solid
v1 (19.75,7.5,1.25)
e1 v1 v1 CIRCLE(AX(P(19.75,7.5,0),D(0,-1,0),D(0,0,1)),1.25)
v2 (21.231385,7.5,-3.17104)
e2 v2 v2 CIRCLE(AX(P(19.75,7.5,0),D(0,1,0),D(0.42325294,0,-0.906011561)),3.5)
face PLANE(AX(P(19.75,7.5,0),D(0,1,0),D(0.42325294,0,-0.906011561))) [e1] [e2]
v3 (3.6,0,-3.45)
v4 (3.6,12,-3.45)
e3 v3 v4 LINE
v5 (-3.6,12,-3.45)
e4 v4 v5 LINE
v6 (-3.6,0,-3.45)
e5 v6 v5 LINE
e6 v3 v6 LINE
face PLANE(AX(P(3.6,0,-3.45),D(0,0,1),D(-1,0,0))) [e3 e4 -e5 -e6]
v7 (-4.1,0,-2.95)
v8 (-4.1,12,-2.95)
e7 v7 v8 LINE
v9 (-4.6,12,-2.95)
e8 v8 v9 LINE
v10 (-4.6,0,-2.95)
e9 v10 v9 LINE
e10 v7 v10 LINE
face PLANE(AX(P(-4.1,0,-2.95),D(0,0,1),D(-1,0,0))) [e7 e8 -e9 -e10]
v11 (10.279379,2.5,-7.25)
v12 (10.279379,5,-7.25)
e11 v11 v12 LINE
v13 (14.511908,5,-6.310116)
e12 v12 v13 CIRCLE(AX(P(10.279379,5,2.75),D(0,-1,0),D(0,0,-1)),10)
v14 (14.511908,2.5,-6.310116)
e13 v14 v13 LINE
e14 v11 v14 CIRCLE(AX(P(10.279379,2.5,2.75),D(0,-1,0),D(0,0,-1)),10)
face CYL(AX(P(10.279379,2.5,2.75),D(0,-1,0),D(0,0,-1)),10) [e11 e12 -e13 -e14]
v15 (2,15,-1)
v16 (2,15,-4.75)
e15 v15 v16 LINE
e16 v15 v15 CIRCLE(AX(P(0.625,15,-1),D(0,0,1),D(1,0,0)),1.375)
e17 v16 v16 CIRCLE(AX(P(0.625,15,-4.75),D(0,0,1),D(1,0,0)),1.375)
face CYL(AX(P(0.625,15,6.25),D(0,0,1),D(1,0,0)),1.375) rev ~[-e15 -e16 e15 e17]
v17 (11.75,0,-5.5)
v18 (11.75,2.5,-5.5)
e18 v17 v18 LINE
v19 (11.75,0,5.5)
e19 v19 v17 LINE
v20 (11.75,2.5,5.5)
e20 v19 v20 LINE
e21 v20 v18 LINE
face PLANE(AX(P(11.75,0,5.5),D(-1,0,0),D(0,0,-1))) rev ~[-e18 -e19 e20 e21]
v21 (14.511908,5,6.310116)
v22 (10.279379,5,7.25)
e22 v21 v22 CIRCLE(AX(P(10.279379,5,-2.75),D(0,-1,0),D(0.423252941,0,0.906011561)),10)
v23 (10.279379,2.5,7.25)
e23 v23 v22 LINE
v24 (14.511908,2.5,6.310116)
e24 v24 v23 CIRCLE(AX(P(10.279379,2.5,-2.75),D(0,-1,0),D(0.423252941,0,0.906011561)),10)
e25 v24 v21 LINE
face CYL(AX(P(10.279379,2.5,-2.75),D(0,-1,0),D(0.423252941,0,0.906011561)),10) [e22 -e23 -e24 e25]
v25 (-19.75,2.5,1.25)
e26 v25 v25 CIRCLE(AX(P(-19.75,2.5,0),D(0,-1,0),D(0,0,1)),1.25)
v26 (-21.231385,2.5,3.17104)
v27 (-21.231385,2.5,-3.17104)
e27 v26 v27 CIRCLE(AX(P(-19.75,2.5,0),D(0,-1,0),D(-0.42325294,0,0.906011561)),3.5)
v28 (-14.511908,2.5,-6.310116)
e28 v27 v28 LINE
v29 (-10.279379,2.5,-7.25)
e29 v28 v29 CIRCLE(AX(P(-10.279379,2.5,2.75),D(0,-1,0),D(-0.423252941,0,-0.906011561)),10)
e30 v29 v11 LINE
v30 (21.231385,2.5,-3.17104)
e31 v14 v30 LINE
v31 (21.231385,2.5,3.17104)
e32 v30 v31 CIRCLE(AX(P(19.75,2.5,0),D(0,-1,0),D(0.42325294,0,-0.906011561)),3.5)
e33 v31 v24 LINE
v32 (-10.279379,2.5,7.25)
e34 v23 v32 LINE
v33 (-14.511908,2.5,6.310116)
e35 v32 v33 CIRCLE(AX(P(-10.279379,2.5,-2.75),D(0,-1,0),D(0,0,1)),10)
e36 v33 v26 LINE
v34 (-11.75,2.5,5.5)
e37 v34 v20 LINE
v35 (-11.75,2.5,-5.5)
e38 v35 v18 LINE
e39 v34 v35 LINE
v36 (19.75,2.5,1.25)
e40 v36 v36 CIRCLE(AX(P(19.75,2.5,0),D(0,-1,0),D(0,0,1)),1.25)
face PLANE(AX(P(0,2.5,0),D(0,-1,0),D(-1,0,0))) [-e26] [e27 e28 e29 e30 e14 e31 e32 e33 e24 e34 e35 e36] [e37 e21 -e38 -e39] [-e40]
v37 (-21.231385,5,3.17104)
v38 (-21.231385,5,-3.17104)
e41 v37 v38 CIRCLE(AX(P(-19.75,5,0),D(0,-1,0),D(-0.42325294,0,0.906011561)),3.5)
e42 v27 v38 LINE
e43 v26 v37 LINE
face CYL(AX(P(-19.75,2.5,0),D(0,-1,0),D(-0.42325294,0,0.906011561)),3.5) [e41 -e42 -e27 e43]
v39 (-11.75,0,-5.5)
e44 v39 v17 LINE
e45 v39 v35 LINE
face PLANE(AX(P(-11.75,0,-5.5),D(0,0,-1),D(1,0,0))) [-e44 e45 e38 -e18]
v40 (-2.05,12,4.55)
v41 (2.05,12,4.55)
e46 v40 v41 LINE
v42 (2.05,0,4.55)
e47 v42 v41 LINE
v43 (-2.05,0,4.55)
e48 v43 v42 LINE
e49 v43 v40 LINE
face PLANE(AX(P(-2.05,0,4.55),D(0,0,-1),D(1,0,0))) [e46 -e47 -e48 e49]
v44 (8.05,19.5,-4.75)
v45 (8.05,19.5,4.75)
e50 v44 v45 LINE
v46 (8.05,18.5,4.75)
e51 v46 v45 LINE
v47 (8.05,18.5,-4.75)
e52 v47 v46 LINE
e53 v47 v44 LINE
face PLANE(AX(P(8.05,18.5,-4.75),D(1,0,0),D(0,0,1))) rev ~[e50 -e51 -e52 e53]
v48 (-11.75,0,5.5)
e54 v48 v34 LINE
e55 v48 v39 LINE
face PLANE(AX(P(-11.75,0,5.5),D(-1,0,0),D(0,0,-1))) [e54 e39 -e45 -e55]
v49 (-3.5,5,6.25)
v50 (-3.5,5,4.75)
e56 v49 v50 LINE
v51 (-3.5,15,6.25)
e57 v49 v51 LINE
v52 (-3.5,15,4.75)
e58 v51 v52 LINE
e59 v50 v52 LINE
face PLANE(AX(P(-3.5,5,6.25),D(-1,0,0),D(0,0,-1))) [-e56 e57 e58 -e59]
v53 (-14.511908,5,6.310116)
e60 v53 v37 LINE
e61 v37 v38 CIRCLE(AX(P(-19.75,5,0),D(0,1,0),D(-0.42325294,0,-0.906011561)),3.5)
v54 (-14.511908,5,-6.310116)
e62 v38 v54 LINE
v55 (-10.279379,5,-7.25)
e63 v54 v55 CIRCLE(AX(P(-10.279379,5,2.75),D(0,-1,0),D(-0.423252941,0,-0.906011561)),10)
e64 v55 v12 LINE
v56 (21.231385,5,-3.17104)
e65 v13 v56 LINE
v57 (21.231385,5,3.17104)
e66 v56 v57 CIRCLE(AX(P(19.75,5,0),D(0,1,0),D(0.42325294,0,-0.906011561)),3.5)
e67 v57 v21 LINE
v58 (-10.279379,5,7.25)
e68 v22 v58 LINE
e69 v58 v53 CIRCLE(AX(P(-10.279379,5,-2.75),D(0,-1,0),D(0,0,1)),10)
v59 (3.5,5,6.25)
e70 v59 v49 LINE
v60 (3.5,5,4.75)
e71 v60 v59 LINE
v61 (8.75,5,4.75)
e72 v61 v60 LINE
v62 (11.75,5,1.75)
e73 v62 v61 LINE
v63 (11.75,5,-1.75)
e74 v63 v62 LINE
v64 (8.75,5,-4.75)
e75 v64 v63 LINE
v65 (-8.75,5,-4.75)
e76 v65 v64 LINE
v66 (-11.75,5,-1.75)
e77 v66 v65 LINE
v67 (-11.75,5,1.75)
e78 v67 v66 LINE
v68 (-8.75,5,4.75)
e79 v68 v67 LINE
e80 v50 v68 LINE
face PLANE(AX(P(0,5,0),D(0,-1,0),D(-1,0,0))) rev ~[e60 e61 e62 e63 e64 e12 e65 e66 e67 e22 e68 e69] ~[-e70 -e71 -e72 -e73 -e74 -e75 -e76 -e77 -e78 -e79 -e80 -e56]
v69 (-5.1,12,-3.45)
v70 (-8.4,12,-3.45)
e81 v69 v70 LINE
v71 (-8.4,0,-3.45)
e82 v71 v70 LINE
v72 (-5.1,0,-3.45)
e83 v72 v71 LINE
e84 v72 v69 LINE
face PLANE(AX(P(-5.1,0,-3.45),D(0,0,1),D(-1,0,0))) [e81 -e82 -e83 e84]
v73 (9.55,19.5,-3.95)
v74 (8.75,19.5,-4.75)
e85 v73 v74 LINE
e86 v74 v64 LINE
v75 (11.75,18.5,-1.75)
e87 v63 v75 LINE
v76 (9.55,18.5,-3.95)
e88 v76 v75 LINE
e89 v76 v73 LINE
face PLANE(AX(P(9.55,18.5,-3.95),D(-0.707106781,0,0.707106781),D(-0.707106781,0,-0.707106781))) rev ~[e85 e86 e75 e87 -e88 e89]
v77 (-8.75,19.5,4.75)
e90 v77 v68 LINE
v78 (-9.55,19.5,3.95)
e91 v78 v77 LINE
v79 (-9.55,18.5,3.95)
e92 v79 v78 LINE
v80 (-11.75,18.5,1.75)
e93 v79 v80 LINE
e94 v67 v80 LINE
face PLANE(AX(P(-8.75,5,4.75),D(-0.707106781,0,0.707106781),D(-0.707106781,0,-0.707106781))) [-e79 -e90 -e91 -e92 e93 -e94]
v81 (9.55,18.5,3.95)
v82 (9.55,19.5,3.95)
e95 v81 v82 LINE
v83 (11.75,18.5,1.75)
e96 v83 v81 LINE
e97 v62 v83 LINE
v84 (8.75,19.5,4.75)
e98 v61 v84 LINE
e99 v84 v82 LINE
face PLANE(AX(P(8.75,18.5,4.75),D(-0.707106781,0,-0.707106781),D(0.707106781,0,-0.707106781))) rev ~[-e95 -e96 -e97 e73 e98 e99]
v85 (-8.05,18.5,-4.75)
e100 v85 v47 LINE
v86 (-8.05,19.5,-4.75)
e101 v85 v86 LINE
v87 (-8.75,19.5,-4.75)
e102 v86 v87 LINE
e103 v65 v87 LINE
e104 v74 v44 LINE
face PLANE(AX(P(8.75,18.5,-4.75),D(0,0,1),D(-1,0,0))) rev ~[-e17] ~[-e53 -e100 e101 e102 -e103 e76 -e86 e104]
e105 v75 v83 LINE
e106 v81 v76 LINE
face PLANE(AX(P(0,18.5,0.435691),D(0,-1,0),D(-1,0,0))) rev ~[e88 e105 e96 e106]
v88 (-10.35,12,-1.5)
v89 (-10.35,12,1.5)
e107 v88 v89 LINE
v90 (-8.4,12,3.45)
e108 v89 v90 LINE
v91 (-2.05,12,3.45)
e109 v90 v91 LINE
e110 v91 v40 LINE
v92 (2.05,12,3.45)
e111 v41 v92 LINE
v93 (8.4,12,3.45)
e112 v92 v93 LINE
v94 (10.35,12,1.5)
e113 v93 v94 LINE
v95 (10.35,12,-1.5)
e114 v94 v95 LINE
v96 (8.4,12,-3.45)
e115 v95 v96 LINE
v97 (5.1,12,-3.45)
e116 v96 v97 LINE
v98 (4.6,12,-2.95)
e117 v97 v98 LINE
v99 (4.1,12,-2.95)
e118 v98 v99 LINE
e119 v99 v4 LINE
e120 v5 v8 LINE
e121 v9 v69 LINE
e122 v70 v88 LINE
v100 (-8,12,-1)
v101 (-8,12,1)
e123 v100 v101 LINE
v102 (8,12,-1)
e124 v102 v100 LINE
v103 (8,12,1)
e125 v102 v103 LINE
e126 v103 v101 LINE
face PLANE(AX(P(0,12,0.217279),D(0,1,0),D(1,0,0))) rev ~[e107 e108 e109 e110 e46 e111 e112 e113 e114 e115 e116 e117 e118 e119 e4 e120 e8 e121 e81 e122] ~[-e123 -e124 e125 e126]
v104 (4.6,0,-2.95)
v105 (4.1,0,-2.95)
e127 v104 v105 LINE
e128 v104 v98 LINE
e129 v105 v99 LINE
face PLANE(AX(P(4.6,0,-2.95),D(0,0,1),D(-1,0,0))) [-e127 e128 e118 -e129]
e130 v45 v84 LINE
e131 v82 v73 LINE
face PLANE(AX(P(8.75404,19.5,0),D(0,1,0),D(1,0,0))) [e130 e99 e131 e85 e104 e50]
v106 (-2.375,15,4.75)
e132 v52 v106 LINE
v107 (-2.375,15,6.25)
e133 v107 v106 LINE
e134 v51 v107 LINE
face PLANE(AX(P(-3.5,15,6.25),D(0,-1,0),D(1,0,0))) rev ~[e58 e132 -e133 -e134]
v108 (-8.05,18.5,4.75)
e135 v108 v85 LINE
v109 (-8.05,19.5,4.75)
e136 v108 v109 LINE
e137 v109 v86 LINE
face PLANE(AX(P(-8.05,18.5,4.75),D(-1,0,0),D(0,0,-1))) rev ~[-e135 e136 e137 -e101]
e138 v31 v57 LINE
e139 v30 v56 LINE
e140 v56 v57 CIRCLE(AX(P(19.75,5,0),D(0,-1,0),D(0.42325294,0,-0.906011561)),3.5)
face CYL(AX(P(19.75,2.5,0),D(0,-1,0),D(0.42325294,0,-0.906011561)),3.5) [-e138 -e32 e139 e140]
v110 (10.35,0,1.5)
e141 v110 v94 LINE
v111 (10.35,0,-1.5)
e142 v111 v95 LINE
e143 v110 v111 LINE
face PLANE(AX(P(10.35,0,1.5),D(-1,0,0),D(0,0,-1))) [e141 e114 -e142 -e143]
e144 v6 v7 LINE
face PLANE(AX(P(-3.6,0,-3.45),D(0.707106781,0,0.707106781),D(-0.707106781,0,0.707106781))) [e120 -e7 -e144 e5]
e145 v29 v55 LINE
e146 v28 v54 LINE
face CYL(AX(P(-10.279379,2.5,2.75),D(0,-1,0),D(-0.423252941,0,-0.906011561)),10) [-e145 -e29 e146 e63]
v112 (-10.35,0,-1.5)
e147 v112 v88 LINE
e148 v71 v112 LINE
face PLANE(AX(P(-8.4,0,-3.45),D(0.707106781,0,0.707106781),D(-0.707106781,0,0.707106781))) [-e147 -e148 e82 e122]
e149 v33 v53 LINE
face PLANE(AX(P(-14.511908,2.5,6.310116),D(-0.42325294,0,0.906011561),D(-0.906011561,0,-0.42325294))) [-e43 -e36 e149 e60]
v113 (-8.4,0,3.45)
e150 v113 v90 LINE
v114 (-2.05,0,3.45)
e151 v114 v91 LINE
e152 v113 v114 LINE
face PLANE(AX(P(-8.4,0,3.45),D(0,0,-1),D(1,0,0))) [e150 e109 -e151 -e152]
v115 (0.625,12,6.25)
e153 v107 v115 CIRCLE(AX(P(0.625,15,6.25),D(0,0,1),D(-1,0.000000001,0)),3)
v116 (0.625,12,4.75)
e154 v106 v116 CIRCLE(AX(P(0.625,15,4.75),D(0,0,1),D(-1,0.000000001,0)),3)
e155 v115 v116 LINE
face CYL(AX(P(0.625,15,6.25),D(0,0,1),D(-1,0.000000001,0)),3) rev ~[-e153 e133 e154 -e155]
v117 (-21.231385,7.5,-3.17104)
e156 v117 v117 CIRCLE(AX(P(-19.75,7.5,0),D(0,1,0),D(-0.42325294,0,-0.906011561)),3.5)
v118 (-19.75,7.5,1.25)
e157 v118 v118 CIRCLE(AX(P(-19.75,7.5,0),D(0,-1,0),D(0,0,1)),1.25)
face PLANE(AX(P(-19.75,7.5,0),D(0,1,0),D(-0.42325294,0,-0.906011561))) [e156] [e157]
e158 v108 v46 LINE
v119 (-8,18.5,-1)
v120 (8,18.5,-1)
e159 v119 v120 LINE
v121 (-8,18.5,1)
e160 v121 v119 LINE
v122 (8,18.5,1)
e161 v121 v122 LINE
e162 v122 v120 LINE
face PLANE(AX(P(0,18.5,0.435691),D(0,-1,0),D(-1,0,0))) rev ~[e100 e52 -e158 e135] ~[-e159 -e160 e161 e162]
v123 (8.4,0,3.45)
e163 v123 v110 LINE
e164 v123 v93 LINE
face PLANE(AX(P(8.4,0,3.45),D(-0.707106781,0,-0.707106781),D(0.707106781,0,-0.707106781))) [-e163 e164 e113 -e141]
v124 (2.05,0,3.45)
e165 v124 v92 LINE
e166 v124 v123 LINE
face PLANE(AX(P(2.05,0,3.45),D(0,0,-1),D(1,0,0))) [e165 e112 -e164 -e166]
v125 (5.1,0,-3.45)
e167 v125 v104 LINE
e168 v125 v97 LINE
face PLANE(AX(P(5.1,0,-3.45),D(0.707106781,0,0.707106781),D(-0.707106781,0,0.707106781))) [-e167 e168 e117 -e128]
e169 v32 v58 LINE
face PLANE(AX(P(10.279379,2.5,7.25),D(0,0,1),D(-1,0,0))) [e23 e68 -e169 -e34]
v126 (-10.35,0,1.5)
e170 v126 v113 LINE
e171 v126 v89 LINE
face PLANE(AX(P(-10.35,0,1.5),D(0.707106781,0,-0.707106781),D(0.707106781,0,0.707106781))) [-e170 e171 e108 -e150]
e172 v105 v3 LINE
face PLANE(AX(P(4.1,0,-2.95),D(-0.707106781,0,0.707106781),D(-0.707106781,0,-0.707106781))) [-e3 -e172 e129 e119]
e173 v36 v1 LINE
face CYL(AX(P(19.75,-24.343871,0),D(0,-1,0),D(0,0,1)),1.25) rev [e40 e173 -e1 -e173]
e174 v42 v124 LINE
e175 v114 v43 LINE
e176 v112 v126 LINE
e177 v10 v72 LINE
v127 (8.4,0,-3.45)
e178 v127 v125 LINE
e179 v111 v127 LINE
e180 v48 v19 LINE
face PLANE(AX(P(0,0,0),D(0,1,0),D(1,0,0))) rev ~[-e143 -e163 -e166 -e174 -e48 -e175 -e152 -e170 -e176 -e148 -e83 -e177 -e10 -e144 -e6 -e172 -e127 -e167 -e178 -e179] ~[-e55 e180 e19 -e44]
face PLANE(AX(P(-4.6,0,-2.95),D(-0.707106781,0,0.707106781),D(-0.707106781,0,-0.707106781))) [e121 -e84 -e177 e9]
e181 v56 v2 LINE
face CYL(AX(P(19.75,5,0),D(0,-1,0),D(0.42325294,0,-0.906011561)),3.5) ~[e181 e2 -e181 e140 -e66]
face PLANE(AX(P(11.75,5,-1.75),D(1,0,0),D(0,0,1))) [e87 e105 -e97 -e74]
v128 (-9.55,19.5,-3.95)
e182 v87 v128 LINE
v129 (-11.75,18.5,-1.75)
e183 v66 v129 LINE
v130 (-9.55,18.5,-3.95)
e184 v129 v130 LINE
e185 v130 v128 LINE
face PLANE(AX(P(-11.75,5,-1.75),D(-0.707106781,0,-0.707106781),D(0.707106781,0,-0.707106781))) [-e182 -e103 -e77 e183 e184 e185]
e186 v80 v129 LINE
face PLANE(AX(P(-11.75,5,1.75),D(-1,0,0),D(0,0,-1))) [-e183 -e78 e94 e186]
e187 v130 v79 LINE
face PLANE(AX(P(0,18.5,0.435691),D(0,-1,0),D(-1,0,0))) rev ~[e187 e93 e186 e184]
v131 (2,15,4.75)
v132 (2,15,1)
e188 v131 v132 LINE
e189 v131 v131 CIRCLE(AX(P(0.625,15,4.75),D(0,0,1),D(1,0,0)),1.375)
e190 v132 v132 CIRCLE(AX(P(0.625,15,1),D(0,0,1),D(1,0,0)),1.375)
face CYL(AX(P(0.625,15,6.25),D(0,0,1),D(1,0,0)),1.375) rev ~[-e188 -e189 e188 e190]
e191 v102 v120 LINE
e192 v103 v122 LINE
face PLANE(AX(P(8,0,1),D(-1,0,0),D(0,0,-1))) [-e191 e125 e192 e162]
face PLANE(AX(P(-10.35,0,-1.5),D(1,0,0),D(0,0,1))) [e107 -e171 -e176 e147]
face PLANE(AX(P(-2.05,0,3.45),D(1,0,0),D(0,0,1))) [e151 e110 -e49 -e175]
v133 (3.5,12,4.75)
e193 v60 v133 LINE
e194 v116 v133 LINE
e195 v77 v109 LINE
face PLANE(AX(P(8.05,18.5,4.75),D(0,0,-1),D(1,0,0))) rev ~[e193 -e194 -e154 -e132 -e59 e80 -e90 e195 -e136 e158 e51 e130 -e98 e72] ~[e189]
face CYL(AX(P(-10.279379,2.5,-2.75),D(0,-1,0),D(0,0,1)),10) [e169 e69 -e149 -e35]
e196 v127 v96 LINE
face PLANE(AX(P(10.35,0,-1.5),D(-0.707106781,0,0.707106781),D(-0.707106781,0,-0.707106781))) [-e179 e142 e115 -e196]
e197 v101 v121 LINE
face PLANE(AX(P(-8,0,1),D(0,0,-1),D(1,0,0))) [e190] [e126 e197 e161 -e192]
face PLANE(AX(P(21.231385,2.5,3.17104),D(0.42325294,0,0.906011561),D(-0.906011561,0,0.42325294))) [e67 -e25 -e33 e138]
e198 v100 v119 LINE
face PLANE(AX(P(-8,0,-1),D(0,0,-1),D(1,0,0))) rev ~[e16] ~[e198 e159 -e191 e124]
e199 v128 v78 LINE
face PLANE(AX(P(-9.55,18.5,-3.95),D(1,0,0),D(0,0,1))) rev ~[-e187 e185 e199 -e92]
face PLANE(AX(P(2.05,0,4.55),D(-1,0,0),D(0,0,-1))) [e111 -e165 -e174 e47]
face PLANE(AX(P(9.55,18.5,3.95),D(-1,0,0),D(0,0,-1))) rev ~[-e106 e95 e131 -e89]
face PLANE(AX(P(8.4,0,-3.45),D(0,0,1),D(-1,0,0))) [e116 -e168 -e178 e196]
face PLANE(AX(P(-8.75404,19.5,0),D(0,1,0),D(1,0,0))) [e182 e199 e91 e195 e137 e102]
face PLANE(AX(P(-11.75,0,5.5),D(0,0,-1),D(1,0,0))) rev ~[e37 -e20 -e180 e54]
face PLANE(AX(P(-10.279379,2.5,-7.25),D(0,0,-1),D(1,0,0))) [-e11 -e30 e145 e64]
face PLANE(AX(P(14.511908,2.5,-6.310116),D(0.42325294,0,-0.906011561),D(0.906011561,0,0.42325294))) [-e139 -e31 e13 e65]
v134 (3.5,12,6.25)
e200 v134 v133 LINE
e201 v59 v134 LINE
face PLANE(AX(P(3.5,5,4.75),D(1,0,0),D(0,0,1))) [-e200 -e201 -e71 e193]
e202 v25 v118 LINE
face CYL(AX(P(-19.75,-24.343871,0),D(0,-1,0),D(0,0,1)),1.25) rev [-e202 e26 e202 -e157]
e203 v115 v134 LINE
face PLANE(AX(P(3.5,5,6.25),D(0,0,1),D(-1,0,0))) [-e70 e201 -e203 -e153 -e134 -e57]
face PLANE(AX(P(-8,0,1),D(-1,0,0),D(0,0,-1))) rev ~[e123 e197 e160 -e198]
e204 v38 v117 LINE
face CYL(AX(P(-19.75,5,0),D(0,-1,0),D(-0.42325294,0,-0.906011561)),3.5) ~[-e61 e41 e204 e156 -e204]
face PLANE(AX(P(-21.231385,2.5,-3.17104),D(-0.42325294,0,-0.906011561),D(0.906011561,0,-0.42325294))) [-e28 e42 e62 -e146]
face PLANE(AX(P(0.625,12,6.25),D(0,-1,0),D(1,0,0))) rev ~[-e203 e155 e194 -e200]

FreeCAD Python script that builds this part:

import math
import FreeCAD as App
import Part
import Sketcher

doc = App.newDocument("Part")
params = doc.addObject("Spreadsheet::Sheet", "Params")
for row, (alias, value) in enumerate([
    ("sketch1_height", "11 mm"),
    ("sketch1_width", "23.5 mm"),
    ("pad1_length", "2.5 mm"),
    ("sketch2_radius", "10 mm"),
    ("sketch2_radius2", "3.5 mm"),
    ("pad2_length", "2.5 mm"),
    ("sketch3_width", "7 mm"),
    ("sketch3_width2", "17.5 mm"),
    ("sketch3_height", "3.5 mm"),
    ("sketch3_height2", "1.5 mm"),
    ("pad3_length", "13.5 mm"),
    ("sketch4_width", "0.7 mm"),
    ("sketch4_height", "9.5 mm"),
    ("sketch4_height2", "7.9 mm"),
    ("pad4_length", "1 mm"),
    ("sketch5_height", "3 mm"),
    ("sketch5_width", "3.3 mm"),
    ("sketch5_width2", "0.5 mm"),
    ("sketch5_width3", "7.2 mm"),
    ("sketch5_width4", "4.1 mm"),
    ("pocket1_length", "12 mm"),
    ("sketch6_width", "16 mm"),
    ("sketch6_height", "2 mm"),
    ("sketch7_diameter", "2.75 mm"),
    ("pocket3_length", "12 mm"),
    ("sketch8_radius", "3 mm"),
    ("sketch8_width", "7 mm"),
    ("sketch8_height", "6.5 mm"),
    ("pocket4_length", "1.5 mm"),
    ("sketch9_diameter", "7 mm"),
    ("pad5_length", "2.5 mm"),
    ("sketch10_diameter", "2.5 mm"),
], start=1):
    params.set(f"A{row}", alias)
    params.set(f"B{row}", "=" + value)
    params.setAlias(f"B{row}", alias)

body = doc.addObject("PartDesign::Body", "Body")

sketch1 = body.newObject("Sketcher::SketchObject", "Sketch")
sketch1.AttachmentSupport = (doc.getObject("XZ_Plane"), [""])
sketch1.MapMode = "FlatFace"
sketch1.addGeometry(Part.LineSegment(App.Vector(-12, -6, 0), App.Vector(-12, 6, 0)), False)
sketch1.addGeometry(Part.LineSegment(App.Vector(-12, 6, 0), App.Vector(12, 6, 0)), False)
sketch1.addGeometry(Part.LineSegment(App.Vector(12, 6, 0), App.Vector(12, -6, 0)), False)
sketch1.addGeometry(Part.LineSegment(App.Vector(12, -6, 0), App.Vector(-12, -6, 0)), False)
sketch1.addConstraint(Sketcher.Constraint("Coincident", 0, 2, 1, 1))
sketch1.addConstraint(Sketcher.Constraint("Coincident", 1, 2, 2, 1))
sketch1.addConstraint(Sketcher.Constraint("Coincident", 2, 2, 3, 1))
sketch1.addConstraint(Sketcher.Constraint("Coincident", 3, 2, 0, 1))
sketch1.addConstraint(Sketcher.Constraint("Vertical", 0))
sketch1.addConstraint(Sketcher.Constraint("Horizontal", 1))
sketch1.addConstraint(Sketcher.Constraint("Vertical", 2))
sketch1.addConstraint(Sketcher.Constraint("Horizontal", 3))
sketch1.addConstraint(Sketcher.Constraint("Symmetric", 0, 2, 2, 2, -1, 1))
sketch1.addConstraint(Sketcher.Constraint("DistanceY", 0, 1, 0, 2, 11.0))
sketch1.addConstraint(Sketcher.Constraint("DistanceX", 1, 1, 1, 2, 23.5))
sketch1.setExpression("Constraints[9]", "Params.sketch1_height")
sketch1.setExpression("Constraints[10]", "Params.sketch1_width")
pad1 = body.newObject("PartDesign::Pad", "Pad")
pad1.Profile = sketch1
pad1.setExpression("Length", "Params.pad1_length")
pad1.Reversed = True

sketch2 = body.newObject("Sketcher::SketchObject", "Sketch001")
sketch2.AttachmentSupport = (doc.getObject("XZ_Plane"), [""])
sketch2.MapMode = "FlatFace"
sketch2.AttachmentOffset = App.Placement(App.Vector(0, 0, -2.5), App.Rotation())
sketch2.addGeometry(Part.LineSegment(App.Vector(14.5, 6.3, 0), App.Vector(21.2, 3.2, 0)), False)
sketch2.addGeometry(Part.ArcOfCircle(Part.Circle(App.Vector(19.8, 0, 0), App.Vector(0, 0, 1), 3.5), math.radians(-65), math.radians(65)), False)
sketch2.addGeometry(Part.LineSegment(App.Vector(21.2, -3.2, 0), App.Vector(14.5, -6.3, 0)), False)
sketch2.addGeometry(Part.ArcOfCircle(Part.Circle(App.Vector(10.3, 2.7, 0), App.Vector(0, 0, 1), 10), math.radians(-90), math.radians(-65)), False)
sketch2.addGeometry(Part.LineSegment(App.Vector(10.3, -7.2, 0), App.Vector(-10.3, -7.2, 0)), False)
sketch2.addGeometry(Part.ArcOfCircle(Part.Circle(App.Vector(-10.3, 2.7, 0), App.Vector(0, 0, 1), 10), math.radians(-115), math.radians(-90)), False)
sketch2.addGeometry(Part.LineSegment(App.Vector(-14.5, -6.3, 0), App.Vector(-21.2, -3.2, 0)), False)
sketch2.addGeometry(Part.ArcOfCircle(Part.Circle(App.Vector(-19.8, 0, 0), App.Vector(0, 0, 1), 3.5), math.radians(115), math.radians(245)), False)
sketch2.addGeometry(Part.LineSegment(App.Vector(-21.2, 3.2, 0), App.Vector(-14.5, 6.3, 0)), False)
sketch2.addGeometry(Part.ArcOfCircle(Part.Circle(App.Vector(-10.3, -2.7, 0), App.Vector(0, 0, 1), 10), math.radians(90), math.radians(115)), False)
sketch2.addGeometry(Part.LineSegment(App.Vector(-10.3, 7.2, 0), App.Vector(10.3, 7.2, 0)), False)
sketch2.addGeometry(Part.ArcOfCircle(Part.Circle(App.Vector(10.3, -2.7, 0), App.Vector(0, 0, 1), 10), math.radians(65), math.radians(90)), False)
sketch2.addConstraint(Sketcher.Constraint("Tangent", 0, 2, 1, 2))
sketch2.addConstraint(Sketcher.Constraint("Tangent", 1, 1, 2, 1))
sketch2.addConstraint(Sketcher.Constraint("Tangent", 2, 2, 3, 2))
sketch2.addConstraint(Sketcher.Constraint("Tangent", 3, 1, 4, 1))
sketch2.addConstraint(Sketcher.Constraint("Tangent", 4, 2, 5, 2))
sketch2.addConstraint(Sketcher.Constraint("Tangent", 5, 1, 6, 1))
sketch2.addConstraint(Sketcher.Constraint("Tangent", 6, 2, 7, 2))
sketch2.addConstraint(Sketcher.Constraint("Tangent", 7, 1, 8, 1))
sketch2.addConstraint(Sketcher.Constraint("Tangent", 8, 2, 9, 2))
sketch2.addConstraint(Sketcher.Constraint("Tangent", 9, 1, 10, 1))
sketch2.addConstraint(Sketcher.Constraint("Tangent", 10, 2, 11, 2))
sketch2.addConstraint(Sketcher.Constraint("Tangent", 11, 1, 0, 1))
sketch2.addConstraint(Sketcher.Constraint("Horizontal", 4))
sketch2.addConstraint(Sketcher.Constraint("Horizontal", 10))
sketch2.addConstraint(Sketcher.Constraint("Equal", 3, 5))
sketch2.addConstraint(Sketcher.Constraint("Equal", 1, 7))
sketch2.addConstraint(Sketcher.Constraint("Equal", 5, 9))
sketch2.addConstraint(Sketcher.Constraint("Equal", 9, 11))
sketch2.addConstraint(Sketcher.Constraint("Symmetric", 1, 3, 7, 3, -1, 1))
sketch2.addConstraint(Sketcher.Constraint("Symmetric", 3, 3, 9, 3, -1, 1))
sketch2.addConstraint(Sketcher.Constraint("Symmetric", 2, 2, 5, 1, -2))
sketch2.addConstraint(Sketcher.Constraint("Parallel", 0, 6))
sketch2.addConstraint(Sketcher.Constraint("Radius", 3, 10.0))
sketch2.addConstraint(Sketcher.Constraint("Radius", 1, 3.5))
sketch2.addConstraint(Sketcher.Constraint("DistanceX", 7, 3, 1, 3, 39.5))
sketch2.addConstraint(Sketcher.Constraint("DistanceY", 9, 3, 5, 3, 5.5))
sketch2.addConstraint(Sketcher.Constraint("DistanceX", 4, 2, 4, 1, 20.558758))
sketch2.setExpression("Constraints[22]", "Params.sketch2_radius")
sketch2.setExpression("Constraints[23]", "Params.sketch2_radius2")
pad2 = body.newObject("PartDesign::Pad", "Pad001")
pad2.Profile = sketch2
pad2.setExpression("Length", "Params.pad2_length")
pad2.Reversed = True

sketch3 = body.newObject("Sketcher::SketchObject", "Sketch002")
sketch3.AttachmentSupport = (doc.getObject("XZ_Plane"), [""])
sketch3.MapMode = "FlatFace"
sketch3.AttachmentOffset = App.Placement(App.Vector(0, 0, -5), App.Rotation())
sketch3.addGeometry(Part.LineSegment(App.Vector(3.5, 4.8, 0), App.Vector(8.8, 4.8, 0)), False)
sketch3.addGeometry(Part.LineSegment(App.Vector(8.8, 4.8, 0), App.Vector(11.8, 1.8, 0)), False)
sketch3.addGeometry(Part.LineSegment(App.Vector(11.8, 1.8, 0), App.Vector(11.8, -1.8, 0)), False)
sketch3.addGeometry(Part.LineSegment(App.Vector(11.8, -1.8, 0), App.Vector(8.8, -4.8, 0)), False)
sketch3.addGeometry(Part.LineSegment(App.Vector(8.8, -4.8, 0), App.Vector(-8.8, -4.8, 0)), False)
sketch3.addGeometry(Part.LineSegment(App.Vector(-8.8, -4.8, 0), App.Vector(-11.8, -1.8, 0)), False)
sketch3.addGeometry(Part.LineSegment(App.Vector(-11.8, -1.8, 0), App.Vector(-11.8, 1.8, 0)), False)
sketch3.addGeometry(Part.LineSegment(App.Vector(-11.8, 1.8, 0), App.Vector(-8.8, 4.8, 0)), False)
sketch3.addGeometry(Part.LineSegment(App.Vector(-8.8, 4.8, 0), App.Vector(-3.5, 4.8, 0)), False)
sketch3.addGeometry(Part.LineSegment(App.Vector(-3.5, 4.8, 0), App.Vector(-3.5, 6.2, 0)), False)
sketch3.addGeometry(Part.LineSegment(App.Vector(-3.5, 6.2, 0), App.Vector(3.5, 6.2, 0)), False)
sketch3.addGeometry(Part.LineSegment(App.Vector(3.5, 6.2, 0), App.Vector(3.5, 4.8, 0)), False)
sketch3.addConstraint(Sketcher.Constraint("Coincident", 0, 2, 1, 1))
sketch3.addConstraint(Sketcher.Constraint("Coincident", 1, 2, 2, 1))
sketch3.addConstraint(Sketcher.Constraint("Coincident", 2, 2, 3, 1))
sketch3.addConstraint(Sketcher.Constraint("Coincident", 3, 2, 4, 1))
sketch3.addConstraint(Sketcher.Constraint("Coincident", 4, 2, 5, 1))
sketch3.addConstraint(Sketcher.Constraint("Coincident", 5, 2, 6, 1))
sketch3.addConstraint(Sketcher.Constraint("Coincident", 6, 2, 7, 1))
sketch3.addConstraint(Sketcher.Constraint("Coincident", 7, 2, 8, 1))
sketch3.addConstraint(Sketcher.Constraint("Coincident", 8, 2, 9, 1))
sketch3.addConstraint(Sketcher.Constraint("Coincident", 9, 2, 10, 1))
sketch3.addConstraint(Sketcher.Constraint("Coincident", 10, 2, 11, 1))
sketch3.addConstraint(Sketcher.Constraint("Coincident", 11, 2, 0, 1))
sketch3.addConstraint(Sketcher.Constraint("Horizontal", 0))
sketch3.addConstraint(Sketcher.Constraint("Vertical", 2))
sketch3.addConstraint(Sketcher.Constraint("Horizontal", 4))
sketch3.addConstraint(Sketcher.Constraint("Vertical", 6))
sketch3.addConstraint(Sketcher.Constraint("Horizontal", 8))
sketch3.addConstraint(Sketcher.Constraint("Vertical", 9))
sketch3.addConstraint(Sketcher.Constraint("Horizontal", 10))
sketch3.addConstraint(Sketcher.Constraint("Vertical", 11))
sketch3.addConstraint(Sketcher.Constraint("Symmetric", 0, 2, 4, 2, -1, 1))
sketch3.addConstraint(Sketcher.Constraint("Symmetric", 1, 2, 5, 2, -1, 1))
sketch3.addConstraint(Sketcher.Constraint("Symmetric", 3, 2, 7, 2, -1, 1))
sketch3.addConstraint(Sketcher.Constraint("Perpendicular", 1, 3))
sketch3.addConstraint(Sketcher.Constraint("Perpendicular", 5, 7))
sketch3.addConstraint(Sketcher.Constraint("Horizontal", 2, 2, 5, 2))
sketch3.addConstraint(Sketcher.Constraint("Vertical", 0, 2, 3, 2))
sketch3.addConstraint(Sketcher.Constraint("Equal", 0, 8))
sketch3.addConstraint(Sketcher.Constraint("DistanceX", 10, 1, 10, 2, 7.0))
sketch3.addConstraint(Sketcher.Constraint("DistanceX", 4, 2, 4, 1, 17.5))
sketch3.addConstraint(Sketcher.Constraint("DistanceY", 2, 2, 2, 1, 3.5))
sketch3.addConstraint(Sketcher.Constraint("DistanceY", 9, 1, 9, 2, 1.5))
sketch3.addConstraint(Sketcher.Constraint("DistanceX", 0, 2, 1, 2, 3.0))
sketch3.setExpression("Constraints[28]", "Params.sketch3_width")
sketch3.setExpression("Constraints[29]", "Params.sketch3_width2")
sketch3.setExpression("Constraints[30]", "Params.sketch3_height")
sketch3.setExpression("Constraints[31]", "Params.sketch3_height2")
pad3 = body.newObject("PartDesign::Pad", "Pad002")
pad3.Profile = sketch3
pad3.setExpression("Length", "Params.pad3_length")
pad3.Reversed = True

sketch4 = body.newObject("Sketcher::SketchObject", "Sketch003")
sketch4.AttachmentSupport = (doc.getObject("XZ_Plane"), [""])
sketch4.MapMode = "FlatFace"
sketch4.AttachmentOffset = App.Placement(App.Vector(0, 0, -18.5), App.Rotation())
sketch4.addGeometry(Part.LineSegment(App.Vector(8.8, -4.8, 0), App.Vector(8.1, -4.8, 0)), False)
sketch4.addGeometry(Part.LineSegment(App.Vector(8.1, -4.8, 0), App.Vector(8.1, 4.8, 0)), False)
sketch4.addGeometry(Part.LineSegment(App.Vector(8.1, 4.8, 0), App.Vector(8.8, 4.8, 0)), False)
sketch4.addGeometry(Part.LineSegment(App.Vector(8.8, 4.8, 0), App.Vector(9.6, 4, 0)), False)
sketch4.addGeometry(Part.LineSegment(App.Vector(9.6, 4, 0), App.Vector(9.6, -4, 0)), False)
sketch4.addGeometry(Part.LineSegment(App.Vector(9.6, -4, 0), App.Vector(8.8, -4.8, 0)), False)
sketch4.addGeometry(Part.LineSegment(App.Vector(-8.1, -4.8, 0), App.Vector(-8.8, -4.8, 0)), False)
sketch4.addGeometry(Part.LineSegment(App.Vector(-8.8, -4.8, 0), App.Vector(-9.6, -4, 0)), False)
sketch4.addGeometry(Part.LineSegment(App.Vector(-9.6, -4, 0), App.Vector(-9.6, 4, 0)), False)
sketch4.addGeometry(Part.LineSegment(App.Vector(-9.6, 4, 0), App.Vector(-8.8, 4.8, 0)), False)
sketch4.addGeometry(Part.LineSegment(App.Vector(-8.8, 4.8, 0), App.Vector(-8.1, 4.8, 0)), False)
sketch4.addGeometry(Part.LineSegment(App.Vector(-8.1, 4.8, 0), App.Vector(-8.1, -4.8, 0)), False)
sketch4.addConstraint(Sketcher.Constraint("Coincident", 0, 2, 1, 1))
sketch4.addConstraint(Sketcher.Constraint("Coincident", 1, 2, 2, 1))
sketch4.addConstraint(Sketcher.Constraint("Coincident", 2, 2, 3, 1))
sketch4.addConstraint(Sketcher.Constraint("Coincident", 3, 2, 4, 1))
sketch4.addConstraint(Sketcher.Constraint("Coincident", 4, 2, 5, 1))
sketch4.addConstraint(Sketcher.Constraint("Coincident", 5, 2, 0, 1))
sketch4.addConstraint(Sketcher.Constraint("Coincident", 6, 2, 7, 1))
sketch4.addConstraint(Sketcher.Constraint("Coincident", 7, 2, 8, 1))
sketch4.addConstraint(Sketcher.Constraint("Coincident", 8, 2, 9, 1))
sketch4.addConstraint(Sketcher.Constraint("Coincident", 9, 2, 10, 1))
sketch4.addConstraint(Sketcher.Constraint("Coincident", 10, 2, 11, 1))
sketch4.addConstraint(Sketcher.Constraint("Coincident", 11, 2, 6, 1))
sketch4.addConstraint(Sketcher.Constraint("Horizontal", 0))
sketch4.addConstraint(Sketcher.Constraint("Vertical", 1))
sketch4.addConstraint(Sketcher.Constraint("Horizontal", 2))
sketch4.addConstraint(Sketcher.Constraint("Vertical", 4))
sketch4.addConstraint(Sketcher.Constraint("Horizontal", 6))
sketch4.addConstraint(Sketcher.Constraint("Vertical", 8))
sketch4.addConstraint(Sketcher.Constraint("Horizontal", 10))
sketch4.addConstraint(Sketcher.Constraint("Vertical", 11))
sketch4.addConstraint(Sketcher.Constraint("Symmetric", 2, 2, 6, 2, -1, 1))
sketch4.addConstraint(Sketcher.Constraint("Symmetric", 3, 2, 7, 2, -1, 1))
sketch4.addConstraint(Sketcher.Constraint("Symmetric", 5, 2, 9, 2, -1, 1))
sketch4.addConstraint(Sketcher.Constraint("Symmetric", 5, 2, 6, 2, -2))
sketch4.addConstraint(Sketcher.Constraint("Perpendicular", 3, 5))
sketch4.addConstraint(Sketcher.Constraint("Perpendicular", 7, 9))
sketch4.addConstraint(Sketcher.Constraint("Horizontal", 4, 2, 7, 2))
sketch4.addConstraint(Sketcher.Constraint("Equal", 2, 6))
sketch4.addConstraint(Sketcher.Constraint("DistanceX", 0, 2, 0, 1, 0.7))
sketch4.addConstraint(Sketcher.Constraint("DistanceY", 1, 1, 1, 2, 9.5))
sketch4.addConstraint(Sketcher.Constraint("DistanceY", 4, 2, 4, 1, 7.9))
sketch4.addConstraint(Sketcher.Constraint("DistanceX", 6, 2, 0, 2, 16.8))
sketch4.setExpression("Constraints[28]", "Params.sketch4_width")
sketch4.setExpression("Constraints[29]", "Params.sketch4_height")
sketch4.setExpression("Constraints[30]", "Params.sketch4_height2")
pad4 = body.newObject("PartDesign::Pad", "Pad003")
pad4.Profile = sketch4
pad4.setExpression("Length", "Params.pad4_length")
pad4.Reversed = True

sketch5 = body.newObject("Sketcher::SketchObject", "Sketch004")
sketch5.AttachmentSupport = (doc.getObject("XZ_Plane"), [""])
sketch5.MapMode = "FlatFace"
sketch5.addGeometry(Part.LineSegment(App.Vector(8.4, -3.5, 0), App.Vector(5.1, -3.5, 0)), False)
sketch5.addGeometry(Part.LineSegment(App.Vector(5.1, -3.5, 0), App.Vector(4.6, -3, 0)), False)
sketch5.addGeometry(Part.LineSegment(App.Vector(4.6, -3, 0), App.Vector(4.1, -3, 0)), False)
sketch5.addGeometry(Part.LineSegment(App.Vector(4.1, -3, 0), App.Vector(3.6, -3.5, 0)), False)
sketch5.addGeometry(Part.LineSegment(App.Vector(3.6, -3.5, 0), App.Vector(-3.6, -3.5, 0)), False)
sketch5.addGeometry(Part.LineSegment(App.Vector(-3.6, -3.5, 0), App.Vector(-4.1, -3, 0)), False)
sketch5.addGeometry(Part.LineSegment(App.Vector(-4.1, -3, 0), App.Vector(-4.6, -3, 0)), False)
sketch5.addGeometry(Part.LineSegment(App.Vector(-4.6, -3, 0), App.Vector(-5.1, -3.5, 0)), False)
sketch5.addGeometry(Part.LineSegment(App.Vector(-5.1, -3.5, 0), App.Vector(-8.4, -3.5, 0)), False)
sketch5.addGeometry(Part.LineSegment(App.Vector(-8.4, -3.5, 0), App.Vector(-10.3, -1.5, 0)), False)
sketch5.addGeometry(Part.LineSegment(App.Vector(-10.3, -1.5, 0), App.Vector(-10.3, 1.5, 0)), False)
sketch5.addGeometry(Part.LineSegment(App.Vector(-10.3, 1.5, 0), App.Vector(-8.4, 3.5, 0)), False)
sketch5.addGeometry(Part.LineSegment(App.Vector(-8.4, 3.5, 0), App.Vector(-2, 3.5, 0)), False)
sketch5.addGeometry(Part.LineSegment(App.Vector(-2, 3.5, 0), App.Vector(-2, 4.5, 0)), False)
sketch5.addGeometry(Part.LineSegment(App.Vector(-2, 4.5, 0), App.Vector(2, 4.5, 0)), False)
sketch5.addGeometry(Part.LineSegment(App.Vector(2, 4.5, 0), App.Vector(2, 3.5, 0)), False)
sketch5.addGeometry(Part.LineSegment(App.Vector(2, 3.5, 0), App.Vector(8.4, 3.5, 0)), False)
sketch5.addGeometry(Part.LineSegment(App.Vector(8.4, 3.5, 0), App.Vector(10.3, 1.5, 0)), False)
sketch5.addGeometry(Part.LineSegment(App.Vector(10.3, 1.5, 0), App.Vector(10.3, -1.5, 0)), False)
sketch5.addGeometry(Part.LineSegment(App.Vector(10.3, -1.5, 0), App.Vector(8.4, -3.5, 0)), False)
sketch5.addConstraint(Sketcher.Constraint("Coincident", 0, 2, 1, 1))
sketch5.addConstraint(Sketcher.Constraint("Coincident", 1, 2, 2, 1))
sketch5.addConstraint(Sketcher.Constraint("Coincident", 2, 2, 3, 1))
sketch5.addConstraint(Sketcher.Constraint("Coincident", 3, 2, 4, 1))
sketch5.addConstraint(Sketcher.Constraint("Coincident", 4, 2, 5, 1))
sketch5.addConstraint(Sketcher.Constraint("Coincident", 5, 2, 6, 1))
sketch5.addConstraint(Sketcher.Constraint("Coincident", 6, 2, 7, 1))
sketch5.addConstraint(Sketcher.Constraint("Coincident", 7, 2, 8, 1))
sketch5.addConstraint(Sketcher.Constraint("Coincident", 8, 2, 9, 1))
sketch5.addConstraint(Sketcher.Constraint("Coincident", 9, 2, 10, 1))
sketch5.addConstraint(Sketcher.Constraint("Coincident", 10, 2, 11, 1))
sketch5.addConstraint(Sketcher.Constraint("Coincident", 11, 2, 12, 1))
sketch5.addConstraint(Sketcher.Constraint("Coincident", 12, 2, 13, 1))
sketch5.addConstraint(Sketcher.Constraint("Coincident", 13, 2, 14, 1))
sketch5.addConstraint(Sketcher.Constraint("Coincident", 14, 2, 15, 1))
sketch5.addConstraint(Sketcher.Constraint("Coincident", 15, 2, 16, 1))
sketch5.addConstraint(Sketcher.Constraint("Coincident", 16, 2, 17, 1))
sketch5.addConstraint(Sketcher.Constraint("Coincident", 17, 2, 18, 1))
sketch5.addConstraint(Sketcher.Constraint("Coincident", 18, 2, 19, 1))
sketch5.addConstraint(Sketcher.Constraint("Coincident", 19, 2, 0, 1))
sketch5.addConstraint(Sketcher.Constraint("Horizontal", 0))
sketch5.addConstraint(Sketcher.Constraint("Horizontal", 2))
sketch5.addConstraint(Sketcher.Constraint("Horizontal", 4))
sketch5.addConstraint(Sketcher.Constraint("Horizontal", 6))
sketch5.addConstraint(Sketcher.Constraint("Horizontal", 8))
sketch5.addConstraint(Sketcher.Constraint("Vertical", 10))
sketch5.addConstraint(Sketcher.Constraint("Horizontal", 12))
sketch5.addConstraint(Sketcher.Constraint("Vertical", 13))
sketch5.addConstraint(Sketcher.Constraint("Horizontal", 14))
sketch5.addConstraint(Sketcher.Constraint("Vertical", 15))
sketch5.addConstraint(Sketcher.Constraint("Horizontal", 16))
sketch5.addConstraint(Sketcher.Constraint("Vertical", 18))
sketch5.addConstraint(Sketcher.Constraint("Symmetric", 8, 2, 16, 2, -1, 1))
sketch5.addConstraint(Sketcher.Constraint("Symmetric", 9, 2, 17, 2, -1, 1))
sketch5.addConstraint(Sketcher.Constraint("Symmetric", 11, 2, 19, 2, -1, 1))
sketch5.addConstraint(Sketcher.Constraint("Symmetric", 2, 2, 5, 2, -2))
sketch5.addConstraint(Sketcher.Constraint("Symmetric", 0, 2, 7, 2, -2))
sketch5.addConstraint(Sketcher.Constraint("Perpendicular", 1, 3))
sketch5.addConstraint(Sketcher.Constraint("Perpendicular", 3, 5))
sketch5.addConstraint(Sketcher.Constraint("Perpendicular", 5, 7))
sketch5.addConstraint(Sketcher.Constraint("Perpendicular", 7, 9))
sketch5.addConstraint(Sketcher.Constraint("Perpendicular", 9, 11))
sketch5.addConstraint(Sketcher.Constraint("Perpendicular", 17, 19))
sketch5.addConstraint(Sketcher.Constraint("Horizontal", 0, 2, 3, 2))
sketch5.addConstraint(Sketcher.Constraint("Horizontal", 10, 2, 17, 2))
sketch5.addConstraint(Sketcher.Constraint("Vertical", 8, 2, 11, 2))
sketch5.addConstraint(Sketcher.Constraint("Equal", 12, 16))
sketch5.addConstraint(Sketcher.Constraint("DistanceY", 10, 1, 10, 2, 3.0))
sketch5.addConstraint(Sketcher.Constraint("DistanceX", 0, 2, 0, 1, 3.3))
sketch5.addConstraint(Sketcher.Constraint("DistanceX", 2, 2, 2, 1, 0.5))
sketch5.addConstraint(Sketcher.Constraint("DistanceX", 4, 2, 4, 1, 7.2))
sketch5.addConstraint(Sketcher.Constraint("DistanceX", 14, 1, 14, 2, 4.1))
sketch5.addConstraint(Sketcher.Constraint("DistanceY", 13, 1, 13, 2, 1.1))
sketch5.addConstraint(Sketcher.Constraint("DistanceX", 2, 2, 0, 2, 1.0))
sketch5.addConstraint(Sketcher.Constraint("DistanceY", 4, 2, 13, 2, 8.0))
sketch5.setExpression("Constraints[47]", "Params.sketch5_height")
sketch5.setExpression("Constraints[48]", "Params.sketch5_width")
sketch5.setExpression("Constraints[49]", "Params.sketch5_width2")
sketch5.setExpression("Constraints[50]", "Params.sketch5_width3")
sketch5.setExpression("Constraints[51]", "Params.sketch5_width4")
pocket1 = body.newObject("PartDesign::Pocket", "Pocket")
pocket1.Profile = sketch5
pocket1.setExpression("Length", "Params.pocket1_length")

sketch6 = body.newObject("Sketcher::SketchObject", "Sketch005")
sketch6.AttachmentSupport = (doc.getObject("XZ_Plane"), [""])
sketch6.MapMode = "FlatFace"
sketch6.addGeometry(Part.LineSegment(App.Vector(-8, -1, 0), App.Vector(-8, 1, 0)), False)
sketch6.addGeometry(Part.LineSegment(App.Vector(-8, 1, 0), App.Vector(8, 1, 0)), False)
sketch6.addGeometry(Part.LineSegment(App.Vector(8, 1, 0), App.Vector(8, -1, 0)), False)
sketch6.addGeometry(Part.LineSegment(App.Vector(8, -1, 0), App.Vector(-8, -1, 0)), False)
sketch6.addConstraint(Sketcher.Constraint("Coincident", 0, 2, 1, 1))
sketch6.addConstraint(Sketcher.Constraint("Coincident", 1, 2, 2, 1))
sketch6.addConstraint(Sketcher.Constraint("Coincident", 2, 2, 3, 1))
sketch6.addConstraint(Sketcher.Constraint("Coincident", 3, 2, 0, 1))
sketch6.addConstraint(Sketcher.Constraint("Vertical", 0))
sketch6.addConstraint(Sketcher.Constraint("Horizontal", 1))
sketch6.addConstraint(Sketcher.Constraint("Vertical", 2))
sketch6.addConstraint(Sketcher.Constraint("Horizontal", 3))
sketch6.addConstraint(Sketcher.Constraint("Symmetric", 0, 2, 2, 2, -1, 1))
sketch6.addConstraint(Sketcher.Constraint("DistanceX", 1, 1, 1, 2, 16.0))
sketch6.addConstraint(Sketcher.Constraint("DistanceY", 0, 1, 0, 2, 2.0))
sketch6.setExpression("Constraints[9]", "Params.sketch6_width")
sketch6.setExpression("Constraints[10]", "Params.sketch6_height")
pocket2 = body.newObject("PartDesign::Pocket", "Pocket001")
pocket2.Profile = sketch6
pocket2.Type = "ThroughAll"

sketch7 = body.newObject("Sketcher::SketchObject", "Sketch006")
sketch7.AttachmentSupport = (doc.getObject("XY_Plane"), [""])
sketch7.MapMode = "FlatFace"
sketch7.AttachmentOffset = App.Placement(App.Vector(0, 0, 6.25), App.Rotation())
sketch7.addGeometry(Part.Circle(App.Vector(0.6, 15, 0), App.Vector(0, 0, 1), 1.4), False)
sketch7.addConstraint(Sketcher.Constraint("Diameter", 0, 2.75))
sketch7.addConstraint(Sketcher.Constraint("DistanceY", -1, 1, 0, 3, 15.0))
sketch7.addConstraint(Sketcher.Constraint("DistanceX", -1, 1, 0, 3, 0.625))
sketch7.setExpression("Constraints[0]", "Params.sketch7_diameter")
pocket3 = body.newObject("PartDesign::Pocket", "Pocket002")
pocket3.Profile = sketch7
pocket3.setExpression("Length", "Params.pocket3_length")

sketch8 = body.newObject("Sketcher::SketchObject", "Sketch007")
sketch8.AttachmentSupport = (doc.getObject("XY_Plane"), [""])
sketch8.MapMode = "FlatFace"
sketch8.AttachmentOffset = App.Placement(App.Vector(0, 0, 6.25), App.Rotation())
sketch8.addGeometry(Part.LineSegment(App.Vector(0.6, 12, 0), App.Vector(3.5, 12, 0)), False)
sketch8.addGeometry(Part.LineSegment(App.Vector(3.5, 12, 0), App.Vector(3.5, 18.5, 0)), False)
sketch8.addGeometry(Part.LineSegment(App.Vector(3.5, 18.5, 0), App.Vector(-3.5, 18.5, 0)), False)
sketch8.addGeometry(Part.LineSegment(App.Vector(-3.5, 18.5, 0), App.Vector(-3.5, 15, 0)), False)
sketch8.addGeometry(Part.LineSegment(App.Vector(-3.5, 15, 0), App.Vector(-2.4, 15, 0)), False)
sketch8.addGeometry(Part.ArcOfCircle(Part.Circle(App.Vector(0.6, 15, 0), App.Vector(0, 0, 1), 3), math.radians(180), math.radians(270)), False)
sketch8.addConstraint(Sketcher.Constraint("Coincident", 0, 2, 1, 1))
sketch8.addConstraint(Sketcher.Constraint("Coincident", 1, 2, 2, 1))
sketch8.addConstraint(Sketcher.Constraint("Coincident", 2, 2, 3, 1))
sketch8.addConstraint(Sketcher.Constraint("Coincident", 3, 2, 4, 1))
sketch8.addConstraint(Sketcher.Constraint("Coincident", 4, 2, 5, 1))
sketch8.addConstraint(Sketcher.Constraint("Tangent", 5, 2, 0, 1))
sketch8.addConstraint(Sketcher.Constraint("Horizontal", 0))
sketch8.addConstraint(Sketcher.Constraint("Vertical", 1))
sketch8.addConstraint(Sketcher.Constraint("Horizontal", 2))
sketch8.addConstraint(Sketcher.Constraint("Vertical", 3))
sketch8.addConstraint(Sketcher.Constraint("Horizontal", 4))
sketch8.addConstraint(Sketcher.Constraint("Horizontal", 5, 3, 3, 2))
sketch8.addConstraint(Sketcher.Constraint("Radius", 5, 3.0))
sketch8.addConstraint(Sketcher.Constraint("DistanceX", 2, 2, 2, 1, 7.0))
sketch8.addConstraint(Sketcher.Constraint("DistanceY", 1, 1, 1, 2, 6.5))
sketch8.addConstraint(Sketcher.Constraint("DistanceY", -1, 1, 5, 3, 15.0))
sketch8.addConstraint(Sketcher.Constraint("DistanceX", -1, 1, 0, 2, 3.5))
sketch8.addConstraint(Sketcher.Constraint("DistanceX", 0, 1, 0, 2, 2.875))
sketch8.setExpression("Constraints[12]", "Params.sketch8_radius")
sketch8.setExpression("Constraints[13]", "Params.sketch8_width")
sketch8.setExpression("Constraints[14]", "Params.sketch8_height")
pocket4 = body.newObject("PartDesign::Pocket", "Pocket003")
pocket4.Profile = sketch8
pocket4.setExpression("Length", "Params.pocket4_length")

sketch9 = body.newObject("Sketcher::SketchObject", "Sketch008")
sketch9.AttachmentSupport = (doc.getObject("XZ_Plane"), [""])
sketch9.MapMode = "FlatFace"
sketch9.AttachmentOffset = App.Placement(App.Vector(0, 0, -5), App.Rotation())
sketch9.addGeometry(Part.Circle(App.Vector(-19.8, 0, 0), App.Vector(0, 0, 1), 3.5), False)
sketch9.addGeometry(Part.Circle(App.Vector(19.8, 0, 0), App.Vector(0, 0, 1), 3.5), False)
sketch9.addConstraint(Sketcher.Constraint("Equal", 0, 1))
sketch9.addConstraint(Sketcher.Constraint("Symmetric", 0, 3, 1, 3, -1, 1))
sketch9.addConstraint(Sketcher.Constraint("PointOnObject", 0, 3, -1))
sketch9.addConstraint(Sketcher.Constraint("Diameter", 0, 7.0))
sketch9.addConstraint(Sketcher.Constraint("DistanceX", 0, 3, 1, 3, 39.5))
sketch9.setExpression("Constraints[3]", "Params.sketch9_diameter")
pad5 = body.newObject("PartDesign::Pad", "Pad004")
pad5.Profile = sketch9
pad5.setExpression("Length", "Params.pad5_length")
pad5.Reversed = True

sketch10 = body.newObject("Sketcher::SketchObject", "Sketch009")
sketch10.AttachmentSupport = (doc.getObject("XZ_Plane"), [""])
sketch10.MapMode = "FlatFace"
sketch10.AttachmentOffset = App.Placement(App.Vector(0, 0, -5), App.Rotation())
sketch10.addGeometry(Part.Circle(App.Vector(19.8, 0, 0), App.Vector(0, 0, 1), 1.2), False)
sketch10.addGeometry(Part.Circle(App.Vector(-19.8, 0, 0), App.Vector(0, 0, 1), 1.2), False)
sketch10.addConstraint(Sketcher.Constraint("Equal", 0, 1))
sketch10.addConstraint(Sketcher.Constraint("Symmetric", 0, 3, 1, 3, -1, 1))
sketch10.addConstraint(Sketcher.Constraint("PointOnObject", 0, 3, -1))
sketch10.addConstraint(Sketcher.Constraint("Diameter", 0, 2.5))
sketch10.addConstraint(Sketcher.Constraint("DistanceX", 1, 3, 0, 3, 39.5))
sketch10.setExpression("Constraints[3]", "Params.sketch10_diameter")
pocket5 = body.newObject("PartDesign::Pocket", "Pocket004")
pocket5.Profile = sketch10
pocket5.Type = "ThroughAll"
pocket5.Midplane = True

doc.recompute()
